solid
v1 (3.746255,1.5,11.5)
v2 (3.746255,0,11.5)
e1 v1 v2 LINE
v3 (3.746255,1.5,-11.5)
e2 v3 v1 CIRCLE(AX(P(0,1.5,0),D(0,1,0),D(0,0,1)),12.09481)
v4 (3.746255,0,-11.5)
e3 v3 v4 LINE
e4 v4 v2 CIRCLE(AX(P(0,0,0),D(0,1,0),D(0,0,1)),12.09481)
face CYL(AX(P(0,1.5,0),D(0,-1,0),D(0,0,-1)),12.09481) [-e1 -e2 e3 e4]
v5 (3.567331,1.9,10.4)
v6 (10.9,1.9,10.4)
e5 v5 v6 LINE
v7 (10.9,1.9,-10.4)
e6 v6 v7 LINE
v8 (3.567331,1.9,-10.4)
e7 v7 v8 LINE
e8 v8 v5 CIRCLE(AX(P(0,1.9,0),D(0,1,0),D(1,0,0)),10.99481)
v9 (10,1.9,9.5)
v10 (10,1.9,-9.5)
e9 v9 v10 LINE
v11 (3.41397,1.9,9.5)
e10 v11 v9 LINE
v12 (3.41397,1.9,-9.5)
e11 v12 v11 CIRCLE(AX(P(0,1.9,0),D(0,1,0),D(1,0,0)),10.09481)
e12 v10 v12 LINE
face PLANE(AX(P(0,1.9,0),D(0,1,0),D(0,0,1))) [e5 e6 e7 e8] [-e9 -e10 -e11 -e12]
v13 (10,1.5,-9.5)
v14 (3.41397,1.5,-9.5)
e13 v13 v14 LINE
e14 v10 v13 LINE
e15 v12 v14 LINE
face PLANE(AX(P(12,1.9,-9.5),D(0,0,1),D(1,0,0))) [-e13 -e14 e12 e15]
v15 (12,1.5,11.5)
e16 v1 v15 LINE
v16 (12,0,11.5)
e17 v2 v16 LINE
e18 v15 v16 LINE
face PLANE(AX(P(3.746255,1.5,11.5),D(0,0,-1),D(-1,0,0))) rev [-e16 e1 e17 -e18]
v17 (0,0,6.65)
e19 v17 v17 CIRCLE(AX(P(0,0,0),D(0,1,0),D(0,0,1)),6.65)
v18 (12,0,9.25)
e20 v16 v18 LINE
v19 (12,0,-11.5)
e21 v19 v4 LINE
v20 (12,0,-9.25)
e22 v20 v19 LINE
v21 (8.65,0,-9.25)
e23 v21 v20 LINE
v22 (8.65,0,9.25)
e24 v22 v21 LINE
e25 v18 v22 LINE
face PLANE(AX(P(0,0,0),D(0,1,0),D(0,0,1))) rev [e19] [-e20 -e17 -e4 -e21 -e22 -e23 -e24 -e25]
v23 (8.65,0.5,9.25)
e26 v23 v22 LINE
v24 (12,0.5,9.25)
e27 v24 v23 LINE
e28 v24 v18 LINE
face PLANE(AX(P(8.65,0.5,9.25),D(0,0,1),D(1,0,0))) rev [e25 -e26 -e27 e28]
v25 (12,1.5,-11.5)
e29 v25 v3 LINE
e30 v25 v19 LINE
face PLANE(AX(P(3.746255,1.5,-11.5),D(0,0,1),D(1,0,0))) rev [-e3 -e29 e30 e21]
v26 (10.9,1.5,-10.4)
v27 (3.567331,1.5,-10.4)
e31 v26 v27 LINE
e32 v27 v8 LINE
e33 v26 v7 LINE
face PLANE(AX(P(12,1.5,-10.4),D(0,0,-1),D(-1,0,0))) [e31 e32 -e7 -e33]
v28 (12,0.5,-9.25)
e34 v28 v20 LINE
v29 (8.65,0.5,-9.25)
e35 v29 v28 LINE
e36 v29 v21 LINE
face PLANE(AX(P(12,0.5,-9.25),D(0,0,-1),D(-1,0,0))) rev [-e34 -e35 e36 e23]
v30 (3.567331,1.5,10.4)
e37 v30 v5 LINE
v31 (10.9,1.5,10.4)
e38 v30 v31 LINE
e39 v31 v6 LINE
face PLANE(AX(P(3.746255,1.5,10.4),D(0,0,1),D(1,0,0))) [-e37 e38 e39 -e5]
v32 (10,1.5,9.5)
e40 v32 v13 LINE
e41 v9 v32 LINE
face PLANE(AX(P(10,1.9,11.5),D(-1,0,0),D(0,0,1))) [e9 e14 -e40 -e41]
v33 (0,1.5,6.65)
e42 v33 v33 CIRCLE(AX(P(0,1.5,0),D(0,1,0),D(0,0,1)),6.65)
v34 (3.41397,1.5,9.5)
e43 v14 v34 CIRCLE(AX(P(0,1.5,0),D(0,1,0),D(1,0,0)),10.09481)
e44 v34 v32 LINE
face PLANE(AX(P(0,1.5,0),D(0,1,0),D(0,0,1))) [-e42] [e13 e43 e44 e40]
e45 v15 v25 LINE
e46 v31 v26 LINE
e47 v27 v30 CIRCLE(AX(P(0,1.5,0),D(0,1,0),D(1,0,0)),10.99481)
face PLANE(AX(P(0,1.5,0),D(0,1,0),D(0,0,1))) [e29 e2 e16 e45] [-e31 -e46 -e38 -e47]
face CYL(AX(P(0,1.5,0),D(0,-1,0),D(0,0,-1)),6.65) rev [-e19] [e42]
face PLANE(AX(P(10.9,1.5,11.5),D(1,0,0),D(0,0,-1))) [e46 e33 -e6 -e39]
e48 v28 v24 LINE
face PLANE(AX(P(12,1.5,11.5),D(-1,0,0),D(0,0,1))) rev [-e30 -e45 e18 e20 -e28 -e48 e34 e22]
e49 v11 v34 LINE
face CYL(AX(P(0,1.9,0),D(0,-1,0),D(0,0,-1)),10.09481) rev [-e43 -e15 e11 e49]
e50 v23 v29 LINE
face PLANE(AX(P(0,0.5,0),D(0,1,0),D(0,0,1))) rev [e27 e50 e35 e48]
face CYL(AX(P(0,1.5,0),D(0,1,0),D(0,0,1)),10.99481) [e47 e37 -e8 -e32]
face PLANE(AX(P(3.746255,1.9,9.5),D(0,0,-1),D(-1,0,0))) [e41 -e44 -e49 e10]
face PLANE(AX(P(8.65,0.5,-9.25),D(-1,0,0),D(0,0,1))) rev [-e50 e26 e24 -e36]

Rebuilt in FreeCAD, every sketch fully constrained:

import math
import FreeCAD as App
import Part
import Sketcher
from FreeCAD import Vector
Q = App.Units.Quantity

doc = App.newDocument("Part")
body = doc.addObject("PartDesign::Body", "Body")

# Sketch on XZ plane
sketch1 = body.newObject("Sketcher::SketchObject", "Sketch")
sketch1.AttachmentSupport = (doc.getObject("XZ_Plane"), [""])
sketch1.MapMode = "FlatFace"
sketch1.addGeometry([
    Part.LineSegment(Vector(4, 12, 0), Vector(12, 12, 0)),  # 0
    Part.LineSegment(Vector(12, 12, 0), Vector(12, -12, 0)),  # 1
    Part.LineSegment(Vector(12, -12, 0), Vector(4, -12, 0)),  # 2
    Part.ArcOfCircle(Part.Circle(Vector(0, 0, 0), Vector(0, 0, 1), 12), math.radians(72), math.radians(288)),  # 3
    Part.Circle(Vector(0, 0, 0), Vector(0, 0, 1), 7),  # 4
], False)
sketch1.addConstraint([
    Sketcher.Constraint("Coincident", 0, 2, 1, 1),
    Sketcher.Constraint("Coincident", 1, 2, 2, 1),
    Sketcher.Constraint("Coincident", 2, 2, 3, 2),
    Sketcher.Constraint("Coincident", 3, 1, 0, 1),
    Sketcher.Constraint("Horizontal", 0),
    Sketcher.Constraint("Vertical", 1),
    Sketcher.Constraint("Horizontal", 2),
    Sketcher.Constraint("Coincident", 3, 3, -1, 1),
    Sketcher.Constraint("Coincident", 4, 3, -1, 1),
    Sketcher.Constraint("Vertical", 2, 2, 3, 1),
    Sketcher.Constraint("Diameter", 4, Q("13.3 mm")),
    Sketcher.Constraint("DistanceY", 1, 2, 1, 1, Q("23 mm")),
    Sketcher.Constraint("DistanceX", -1, 1, 0, 2, Q("12 mm")),
    Sketcher.Constraint("Radius", 3, Q("12.09481 mm")),
])
pad1 = body.newObject("PartDesign::Pad", "Pad")
pad1.Profile = sketch1
pad1.Length = 1.5
pad1.Reversed = True

# Sketch on XZ plane
sketch2 = body.newObject("Sketcher::SketchObject", "Sketch001")
sketch2.AttachmentSupport = (doc.getObject("XZ_Plane"), [""])
sketch2.MapMode = "FlatFace"
sketch2.addGeometry([
    Part.LineSegment(Vector(8.7, 9.2, 0), Vector(8.7, -9.2, 0)),
    Part.LineSegment(Vector(8.7, -9.2, 0), Vector(12, -9.2, 0)),
    Part.LineSegment(Vector(12, -9.2, 0), Vector(12, 9.2, 0)),
    Part.LineSegment(Vector(12, 9.2, 0), Vector(8.7, 9.2, 0)),
], False)
sketch2.addConstraint([
    Sketcher.Constraint("Coincident", 0, 2, 1, 1),
    Sketcher.Constraint("Coincident", 1, 2, 2, 1),
    Sketcher.Constraint("Coincident", 2, 2, 3, 1),
    Sketcher.Constraint("Coincident", 3, 2, 0, 1),
    Sketcher.Constraint("Vertical", 0),
    Sketcher.Constraint("Horizontal", 1),
    Sketcher.Constraint("Vertical", 2),
    Sketcher.Constraint("Horizontal", 3),
    Sketcher.Constraint("DistanceY", 0, 2, 0, 1, Q("18.5 mm")),
    Sketcher.Constraint("DistanceX", -1, 1, 1, 2, Q("12 mm")),
    Sketcher.Constraint("DistanceX", 1, 1, 1, 2, Q("3.35 mm")),
    Sketcher.Constraint("DistanceY", 0, 2, -1, 1, Q("9.25 mm")),
])
pocket1 = body.newObject("PartDesign::Pocket", "Pocket")
pocket1.Profile = sketch2
pocket1.Length = 0.5

# Sketch on XZ plane
sketch3 = body.newObject("Sketcher::SketchObject", "Sketch002")
sketch3.AttachmentSupport = (doc.getObject("XZ_Plane"), [""])
sketch3.MapMode = "FlatFace"
sketch3.AttachmentOffset = App.Placement(Vector(0, 0, -1.5), App.Rotation())
sketch3.addGeometry([
    Part.LineSegment(Vector(4, 12, 0), Vector(12, 12, 0)),  # 0
    Part.LineSegment(Vector(12, 12, 0), Vector(12, -12, 0)),  # 1
    Part.LineSegment(Vector(12, -12, 0), Vector(4, -12, 0)),  # 2
    Part.ArcOfCircle(Part.Circle(Vector(0, 0, 0), Vector(0, 0, 1), 12), math.radians(72), math.radians(288)),  # 3
    Part.LineSegment(Vector(10, 10, 0), Vector(3, 10, 0)),  # 4
    Part.ArcOfCircle(Part.Circle(Vector(0, 0, 0), Vector(0, 0, 1), 10), math.radians(70), math.radians(290)),  # 5
    Part.LineSegment(Vector(3, -10, 0), Vector(10, -10, 0)),  # 6
    Part.LineSegment(Vector(10, -10, 0), Vector(10, 10, 0)),  # 7
], False)
sketch3.addConstraint([
    Sketcher.Constraint("Coincident", 0, 2, 1, 1),
    Sketcher.Constraint("Coincident", 1, 2, 2, 1),
    Sketcher.Constraint("Coincident", 2, 2, 3, 2),
    Sketcher.Constraint("Coincident", 3, 1, 0, 1),
    Sketcher.Constraint("Coincident", 4, 2, 5, 1),
    Sketcher.Constraint("Coincident", 5, 2, 6, 1),
    Sketcher.Constraint("Coincident", 6, 2, 7, 1),
    Sketcher.Constraint("Coincident", 7, 2, 4, 1),
    Sketcher.Constraint("Horizontal", 0),
    Sketcher.Constraint("Vertical", 1),
    Sketcher.Constraint("Horizontal", 2),
    Sketcher.Constraint("Horizontal", 4),
    Sketcher.Constraint("Horizontal", 6),
    Sketcher.Constraint("Vertical", 7),
    Sketcher.Constraint("Coincident", 3, 3, -1, 1),
    Sketcher.Constraint("Coincident", 5, 3, -1, 1),
    Sketcher.Constraint("Vertical", 2, 2, 3, 1),
    Sketcher.Constraint("Vertical", 4, 2, 5, 2),
    Sketcher.Constraint("DistanceY", 1, 2, 1, 1, Q("23 mm")),
    Sketcher.Constraint("DistanceY", 7, 1, 7, 2, Q("19 mm")),
    Sketcher.Constraint("DistanceX", -1, 1, 0, 2, Q("12 mm")),
    Sketcher.Constraint("DistanceX", -1, 1, 6, 2, Q("10 mm")),
    Sketcher.Constraint("Radius", 3, Q("12.09481 mm")),
    Sketcher.Constraint("Radius", 5, Q("10.09481 mm")),
])
pad2 = body.newObject("PartDesign::Pad", "Pad001")
pad2.Profile = sketch3
pad2.Length = 0.4
pad2.Reversed = True

# Sketch on XZ plane
sketch4 = body.newObject("Sketcher::SketchObject", "Sketch003")
sketch4.AttachmentSupport = (doc.getObject("XZ_Plane"), [""])
sketch4.MapMode = "FlatFace"
sketch4.AttachmentOffset = App.Placement(Vector(0, 0, -1.9), App.Rotation())
sketch4.addGeometry([
    Part.LineSegment(Vector(4, 12, 0), Vector(12, 12, 0)),  # 0
    Part.LineSegment(Vector(12, 12, 0), Vector(12, -12, 0)),  # 1
    Part.LineSegment(Vector(12, -12, 0), Vector(4, -12, 0)),  # 2
    Part.ArcOfCircle(Part.Circle(Vector(0, 0, 0), Vector(0, 0, 1), 12), math.radians(72), math.radians(288)),  # 3
    Part.LineSegment(Vector(11, 10, 0), Vector(4, 10, 0)),  # 4
    Part.ArcOfCircle(Part.Circle(Vector(0, 0, 0), Vector(0, 0, 1), 11), math.radians(71), math.radians(289)),  # 5
    Part.LineSegment(Vector(4, -10, 0), Vector(11, -10, 0)),  # 6
    Part.LineSegment(Vector(11, -10, 0), Vector(11, 10, 0)),  # 7
], False)
sketch4.addConstraint([
    Sketcher.Constraint("Coincident", 0, 2, 1, 1),
    Sketcher.Constraint("Coincident", 1, 2, 2, 1),
    Sketcher.Constraint("Coincident", 2, 2, 3, 2),
    Sketcher.Constraint("Coincident", 3, 1, 0, 1),
    Sketcher.Constraint("Coincident", 4, 2, 5, 1),
    Sketcher.Constraint("Coincident", 5, 2, 6, 1),
    Sketcher.Constraint("Coincident", 6, 2, 7, 1),
    Sketcher.Constraint("Coincident", 7, 2, 4, 1),
    Sketcher.Constraint("Horizontal", 0),
    Sketcher.Constraint("Vertical", 1),
    Sketcher.Constraint("Horizontal", 2),
    Sketcher.Constraint("Horizontal", 4),
    Sketcher.Constraint("Horizontal", 6),
    Sketcher.Constraint("Vertical", 7),
    Sketcher.Constraint("Coincident", 3, 3, -1, 1),
    Sketcher.Constraint("Coincident", 5, 3, -1, 1),
    Sketcher.Constraint("Vertical", 2, 2, 3, 1),
    Sketcher.Constraint("Vertical", 4, 2, 5, 2),
    Sketcher.Constraint("DistanceY", 1, 2, 1, 1, Q("23 mm")),
    Sketcher.Constraint("DistanceY", 7, 1, 7, 2, Q("20.8 mm")),
    Sketcher.Constraint("DistanceX", -1, 1, 0, 2, Q("12 mm")),
    Sketcher.Constraint("DistanceX", -1, 1, 6, 2, Q("10.9 mm")),
    Sketcher.Constraint("Radius", 3, Q("12.09481 mm")),
    Sketcher.Constraint("Radius", 5, Q("10.99481 mm")),
])
pocket2 = body.newObject("PartDesign::Pocket", "Pocket001")
pocket2.Profile = sketch4
pocket2.Length = 0.4
pocket2.Reversed = True

doc.recompute()
